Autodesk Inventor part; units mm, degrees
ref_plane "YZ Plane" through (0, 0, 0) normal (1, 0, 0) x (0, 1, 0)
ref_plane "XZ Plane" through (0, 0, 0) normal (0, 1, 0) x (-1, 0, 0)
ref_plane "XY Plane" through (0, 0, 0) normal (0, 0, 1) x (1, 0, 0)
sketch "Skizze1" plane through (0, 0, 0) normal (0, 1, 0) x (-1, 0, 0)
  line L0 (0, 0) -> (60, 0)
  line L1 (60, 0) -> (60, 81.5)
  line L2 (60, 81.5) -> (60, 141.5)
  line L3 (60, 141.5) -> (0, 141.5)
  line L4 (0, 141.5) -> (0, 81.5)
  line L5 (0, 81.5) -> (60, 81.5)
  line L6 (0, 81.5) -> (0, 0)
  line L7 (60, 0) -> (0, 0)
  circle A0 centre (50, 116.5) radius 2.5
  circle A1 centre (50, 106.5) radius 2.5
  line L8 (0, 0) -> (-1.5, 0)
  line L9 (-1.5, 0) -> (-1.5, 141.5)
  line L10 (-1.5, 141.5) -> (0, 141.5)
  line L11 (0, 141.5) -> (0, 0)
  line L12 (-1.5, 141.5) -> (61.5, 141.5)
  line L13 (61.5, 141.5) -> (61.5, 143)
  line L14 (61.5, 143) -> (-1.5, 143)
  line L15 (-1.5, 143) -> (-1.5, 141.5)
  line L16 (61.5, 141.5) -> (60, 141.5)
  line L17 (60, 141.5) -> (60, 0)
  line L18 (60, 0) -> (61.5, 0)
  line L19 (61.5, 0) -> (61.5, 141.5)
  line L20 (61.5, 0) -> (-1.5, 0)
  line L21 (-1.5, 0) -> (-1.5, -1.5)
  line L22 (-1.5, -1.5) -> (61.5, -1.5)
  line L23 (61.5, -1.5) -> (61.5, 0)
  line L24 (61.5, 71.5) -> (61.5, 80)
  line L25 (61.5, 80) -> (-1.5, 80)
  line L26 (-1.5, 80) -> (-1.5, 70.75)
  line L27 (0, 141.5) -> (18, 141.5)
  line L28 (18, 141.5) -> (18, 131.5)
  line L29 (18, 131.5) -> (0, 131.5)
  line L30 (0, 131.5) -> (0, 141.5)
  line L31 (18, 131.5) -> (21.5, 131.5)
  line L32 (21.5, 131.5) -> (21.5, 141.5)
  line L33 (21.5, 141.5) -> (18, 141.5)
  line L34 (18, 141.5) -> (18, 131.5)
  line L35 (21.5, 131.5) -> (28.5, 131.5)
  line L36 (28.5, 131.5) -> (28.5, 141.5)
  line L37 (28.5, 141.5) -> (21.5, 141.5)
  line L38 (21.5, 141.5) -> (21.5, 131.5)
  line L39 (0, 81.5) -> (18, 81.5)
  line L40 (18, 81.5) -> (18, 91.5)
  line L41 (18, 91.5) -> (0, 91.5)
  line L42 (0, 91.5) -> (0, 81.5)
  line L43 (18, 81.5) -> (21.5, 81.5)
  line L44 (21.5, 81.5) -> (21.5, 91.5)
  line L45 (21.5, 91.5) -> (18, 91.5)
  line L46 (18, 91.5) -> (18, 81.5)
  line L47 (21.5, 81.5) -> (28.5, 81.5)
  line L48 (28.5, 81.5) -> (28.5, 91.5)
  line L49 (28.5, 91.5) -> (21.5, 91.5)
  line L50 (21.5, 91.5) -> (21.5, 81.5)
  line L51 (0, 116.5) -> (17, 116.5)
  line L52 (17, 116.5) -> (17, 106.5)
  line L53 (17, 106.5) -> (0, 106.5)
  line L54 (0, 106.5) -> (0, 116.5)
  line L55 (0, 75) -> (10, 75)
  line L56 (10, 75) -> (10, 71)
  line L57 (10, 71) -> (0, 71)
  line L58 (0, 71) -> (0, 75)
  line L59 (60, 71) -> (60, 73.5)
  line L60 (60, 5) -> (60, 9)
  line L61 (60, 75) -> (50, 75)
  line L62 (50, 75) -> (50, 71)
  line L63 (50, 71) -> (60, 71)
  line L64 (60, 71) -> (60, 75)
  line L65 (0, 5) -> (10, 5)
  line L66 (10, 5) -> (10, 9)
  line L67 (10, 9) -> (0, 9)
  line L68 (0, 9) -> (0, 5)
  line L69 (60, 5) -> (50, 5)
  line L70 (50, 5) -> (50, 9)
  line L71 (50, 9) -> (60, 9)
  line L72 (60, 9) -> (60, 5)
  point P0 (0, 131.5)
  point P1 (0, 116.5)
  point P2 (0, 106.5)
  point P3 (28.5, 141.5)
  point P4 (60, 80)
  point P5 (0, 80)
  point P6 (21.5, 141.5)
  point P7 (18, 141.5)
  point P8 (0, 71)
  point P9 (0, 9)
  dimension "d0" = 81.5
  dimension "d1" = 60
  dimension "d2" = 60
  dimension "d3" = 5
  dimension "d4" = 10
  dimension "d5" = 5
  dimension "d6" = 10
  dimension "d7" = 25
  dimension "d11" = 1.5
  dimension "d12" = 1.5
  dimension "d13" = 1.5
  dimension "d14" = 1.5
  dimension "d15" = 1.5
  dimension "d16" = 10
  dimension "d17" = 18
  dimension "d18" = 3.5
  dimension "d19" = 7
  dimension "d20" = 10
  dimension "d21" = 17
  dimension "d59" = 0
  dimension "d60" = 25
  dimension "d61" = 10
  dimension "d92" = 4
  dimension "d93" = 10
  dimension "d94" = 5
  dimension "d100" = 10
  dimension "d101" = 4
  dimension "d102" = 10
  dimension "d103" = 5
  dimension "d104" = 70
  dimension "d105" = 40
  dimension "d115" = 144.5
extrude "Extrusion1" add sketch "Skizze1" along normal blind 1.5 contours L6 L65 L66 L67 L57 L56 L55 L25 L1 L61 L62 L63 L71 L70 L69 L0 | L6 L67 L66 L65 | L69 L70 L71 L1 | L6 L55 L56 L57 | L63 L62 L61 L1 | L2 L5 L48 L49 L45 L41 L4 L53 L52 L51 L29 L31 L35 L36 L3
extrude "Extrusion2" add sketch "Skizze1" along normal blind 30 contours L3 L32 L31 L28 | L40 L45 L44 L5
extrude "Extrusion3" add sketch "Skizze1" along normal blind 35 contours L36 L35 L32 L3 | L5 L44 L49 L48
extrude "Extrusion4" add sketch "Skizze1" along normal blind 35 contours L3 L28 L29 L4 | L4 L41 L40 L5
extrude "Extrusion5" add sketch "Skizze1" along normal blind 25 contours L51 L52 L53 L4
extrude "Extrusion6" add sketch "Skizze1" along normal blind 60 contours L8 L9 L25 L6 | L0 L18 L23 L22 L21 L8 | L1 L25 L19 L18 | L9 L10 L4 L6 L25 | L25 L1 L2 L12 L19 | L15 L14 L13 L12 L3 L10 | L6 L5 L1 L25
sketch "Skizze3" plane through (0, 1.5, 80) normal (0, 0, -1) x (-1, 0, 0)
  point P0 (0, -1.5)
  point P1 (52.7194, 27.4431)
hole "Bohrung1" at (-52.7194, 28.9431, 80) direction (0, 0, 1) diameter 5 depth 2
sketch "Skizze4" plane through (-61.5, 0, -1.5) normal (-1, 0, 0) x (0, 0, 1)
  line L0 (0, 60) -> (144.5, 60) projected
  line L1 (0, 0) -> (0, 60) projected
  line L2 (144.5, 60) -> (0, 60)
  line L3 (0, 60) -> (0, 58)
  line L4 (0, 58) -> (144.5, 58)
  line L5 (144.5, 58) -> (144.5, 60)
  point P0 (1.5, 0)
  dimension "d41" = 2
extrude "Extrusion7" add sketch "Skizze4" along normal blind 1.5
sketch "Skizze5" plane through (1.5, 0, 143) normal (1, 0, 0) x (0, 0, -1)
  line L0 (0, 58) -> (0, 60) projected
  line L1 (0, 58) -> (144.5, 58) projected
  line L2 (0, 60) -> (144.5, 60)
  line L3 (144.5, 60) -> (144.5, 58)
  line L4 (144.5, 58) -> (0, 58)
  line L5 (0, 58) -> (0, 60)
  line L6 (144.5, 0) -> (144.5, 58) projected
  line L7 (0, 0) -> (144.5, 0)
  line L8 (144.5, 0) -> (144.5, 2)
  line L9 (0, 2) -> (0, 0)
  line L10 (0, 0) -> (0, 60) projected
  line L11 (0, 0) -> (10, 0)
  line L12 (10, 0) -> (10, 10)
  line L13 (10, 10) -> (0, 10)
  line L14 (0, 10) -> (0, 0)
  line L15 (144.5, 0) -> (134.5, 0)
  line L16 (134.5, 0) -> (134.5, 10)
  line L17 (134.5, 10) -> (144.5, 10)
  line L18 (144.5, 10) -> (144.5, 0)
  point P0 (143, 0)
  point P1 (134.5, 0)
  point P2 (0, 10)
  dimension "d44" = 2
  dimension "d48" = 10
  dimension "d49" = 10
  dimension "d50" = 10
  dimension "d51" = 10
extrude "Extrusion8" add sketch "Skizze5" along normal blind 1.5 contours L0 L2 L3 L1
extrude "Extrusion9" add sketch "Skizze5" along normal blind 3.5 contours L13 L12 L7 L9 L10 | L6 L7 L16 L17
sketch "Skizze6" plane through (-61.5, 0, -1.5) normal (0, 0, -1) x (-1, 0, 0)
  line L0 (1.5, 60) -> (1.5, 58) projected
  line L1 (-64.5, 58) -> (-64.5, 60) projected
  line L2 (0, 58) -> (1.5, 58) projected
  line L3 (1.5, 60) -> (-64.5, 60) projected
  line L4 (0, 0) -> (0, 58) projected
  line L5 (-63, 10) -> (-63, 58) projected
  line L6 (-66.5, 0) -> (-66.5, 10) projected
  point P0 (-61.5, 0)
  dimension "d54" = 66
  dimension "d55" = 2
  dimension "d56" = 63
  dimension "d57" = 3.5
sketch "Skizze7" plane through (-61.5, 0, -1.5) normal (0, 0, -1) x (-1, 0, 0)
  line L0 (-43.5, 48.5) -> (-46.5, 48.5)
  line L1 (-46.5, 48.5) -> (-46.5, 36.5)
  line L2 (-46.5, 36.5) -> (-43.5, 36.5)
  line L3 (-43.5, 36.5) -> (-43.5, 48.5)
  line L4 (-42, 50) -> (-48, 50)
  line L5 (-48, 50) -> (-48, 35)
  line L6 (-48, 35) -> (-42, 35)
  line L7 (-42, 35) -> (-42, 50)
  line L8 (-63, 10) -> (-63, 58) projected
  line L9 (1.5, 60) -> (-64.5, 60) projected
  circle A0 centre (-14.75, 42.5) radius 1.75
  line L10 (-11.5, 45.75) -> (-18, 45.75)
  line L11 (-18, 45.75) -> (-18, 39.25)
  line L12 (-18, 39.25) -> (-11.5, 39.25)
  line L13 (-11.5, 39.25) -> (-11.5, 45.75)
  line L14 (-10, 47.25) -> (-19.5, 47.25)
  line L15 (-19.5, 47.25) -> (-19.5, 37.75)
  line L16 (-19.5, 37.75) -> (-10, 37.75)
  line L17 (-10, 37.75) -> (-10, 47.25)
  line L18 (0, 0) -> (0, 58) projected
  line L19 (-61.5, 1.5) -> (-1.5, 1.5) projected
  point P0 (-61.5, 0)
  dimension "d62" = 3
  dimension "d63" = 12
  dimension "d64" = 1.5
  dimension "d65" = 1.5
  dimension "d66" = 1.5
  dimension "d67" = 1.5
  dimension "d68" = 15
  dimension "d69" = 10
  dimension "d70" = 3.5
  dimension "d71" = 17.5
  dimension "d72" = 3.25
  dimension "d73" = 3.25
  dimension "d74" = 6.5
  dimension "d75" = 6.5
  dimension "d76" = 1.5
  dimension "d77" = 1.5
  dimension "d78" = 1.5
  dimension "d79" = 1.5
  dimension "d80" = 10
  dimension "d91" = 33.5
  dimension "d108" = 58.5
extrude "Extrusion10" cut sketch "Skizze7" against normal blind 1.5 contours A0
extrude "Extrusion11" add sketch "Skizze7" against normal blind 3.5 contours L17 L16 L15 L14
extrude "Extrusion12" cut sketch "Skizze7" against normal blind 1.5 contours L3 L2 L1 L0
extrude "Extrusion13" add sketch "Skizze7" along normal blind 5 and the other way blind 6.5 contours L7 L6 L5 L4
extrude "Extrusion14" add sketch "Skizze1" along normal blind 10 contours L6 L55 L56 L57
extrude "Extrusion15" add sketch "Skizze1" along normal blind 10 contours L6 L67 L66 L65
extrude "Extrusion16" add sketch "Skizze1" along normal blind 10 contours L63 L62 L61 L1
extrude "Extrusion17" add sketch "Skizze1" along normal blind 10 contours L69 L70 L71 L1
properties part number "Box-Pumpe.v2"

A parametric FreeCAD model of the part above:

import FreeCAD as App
import Part
import Sketcher
from FreeCAD import Vector

doc = App.newDocument("Part")
body = doc.addObject("PartDesign::Body", "Body")
body.AllowCompound = True

# Sketch on XZ plane
sketch1 = body.newObject("Sketcher::SketchObject", "Sketch")
sketch1.AttachmentSupport = (doc.getObject("XZ_Plane"), [""])
sketch1.MapMode = "FlatFace"
sketch1.addGeometry(Part.LineSegment(Vector(0, 0, 0), Vector(-60, 0, 0)), False)
sketch1.addGeometry(Part.LineSegment(Vector(-60, 0, 0), Vector(-60, 80, 0)), False)
sketch1.addGeometry(Part.LineSegment(Vector(-60, 80, 0), Vector(0, 80, 0)), False)
sketch1.addGeometry(Part.LineSegment(Vector(0, 80, 0), Vector(0, 0, 0)), False)
sketch1.addGeometry(Part.LineSegment(Vector(-60, 81.5, 0), Vector(-60, 141.5, 0)), False)
sketch1.addGeometry(Part.LineSegment(Vector(-60, 141.5, 0), Vector(-28.5, 141.5, 0)), False)
sketch1.addGeometry(Part.LineSegment(Vector(-28.5, 141.5, 0), Vector(-28.5, 131.5, 0)), False)
sketch1.addGeometry(Part.LineSegment(Vector(-28.5, 131.5, 0), Vector(0, 131.5, 0)), False)
sketch1.addGeometry(Part.LineSegment(Vector(0, 131.5, 0), Vector(0, 116.5, 0)), False)
sketch1.addGeometry(Part.LineSegment(Vector(0, 116.5, 0), Vector(-17, 116.5, 0)), False)
sketch1.addGeometry(Part.LineSegment(Vector(-17, 116.5, 0), Vector(-17, 106.5, 0)), False)
sketch1.addGeometry(Part.LineSegment(Vector(-17, 106.5, 0), Vector(0, 106.5, 0)), False)
sketch1.addGeometry(Part.LineSegment(Vector(0, 106.5, 0), Vector(0, 91.5, 0)), False)
sketch1.addGeometry(Part.LineSegment(Vector(0, 91.5, 0), Vector(-28.5, 91.5, 0)), False)
sketch1.addGeometry(Part.LineSegment(Vector(-28.5, 91.5, 0), Vector(-28.5, 81.5, 0)), False)
sketch1.addGeometry(Part.LineSegment(Vector(-28.5, 81.5, 0), Vector(-60, 81.5, 0)), False)
sketch1.addGeometry(Part.Circle(Vector(-50, 106.5, 0), Vector(0, 0, 1), 2.5), False)
sketch1.addGeometry(Part.Circle(Vector(-50, 116.5, 0), Vector(0, 0, 1), 2.5), False)
sketch1.addConstraint(Sketcher.Constraint("Coincident", 0, 2, 1, 1))
sketch1.addConstraint(Sketcher.Constraint("Coincident", 1, 2, 2, 1))
sketch1.addConstraint(Sketcher.Constraint("Coincident", 2, 2, 3, 1))
sketch1.addConstraint(Sketcher.Constraint("Coincident", 3, 2, 0, 1))
sketch1.addConstraint(Sketcher.Constraint("Coincident", 4, 2, 5, 1))
sketch1.addConstraint(Sketcher.Constraint("Coincident", 5, 2, 6, 1))
sketch1.addConstraint(Sketcher.Constraint("Coincident", 6, 2, 7, 1))
sketch1.addConstraint(Sketcher.Constraint("Coincident", 7, 2, 8, 1))
sketch1.addConstraint(Sketcher.Constraint("Coincident", 8, 2, 9, 1))
sketch1.addConstraint(Sketcher.Constraint("Coincident", 9, 2, 10, 1))
sketch1.addConstraint(Sketcher.Constraint("Coincident", 10, 2, 11, 1))
sketch1.addConstraint(Sketcher.Constraint("Coincident", 11, 2, 12, 1))
sketch1.addConstraint(Sketcher.Constraint("Coincident", 12, 2, 13, 1))
sketch1.addConstraint(Sketcher.Constraint("Coincident", 13, 2, 14, 1))
sketch1.addConstraint(Sketcher.Constraint("Coincident", 14, 2, 15, 1))
sketch1.addConstraint(Sketcher.Constraint("Coincident", 15, 2, 4, 1))
sketch1.addConstraint(Sketcher.Constraint("Horizontal", 0))
sketch1.addConstraint(Sketcher.Constraint("Vertical", 1))
sketch1.addConstraint(Sketcher.Constraint("Horizontal", 2))
sketch1.addConstraint(Sketcher.Constraint("Vertical", 3))
sketch1.addConstraint(Sketcher.Constraint("Vertical", 4))
sketch1.addConstraint(Sketcher.Constraint("Horizontal", 5))
sketch1.addConstraint(Sketcher.Constraint("Vertical", 6))
sketch1.addConstraint(Sketcher.Constraint("Horizontal", 7))
sketch1.addConstraint(Sketcher.Constraint("Vertical", 8))
sketch1.addConstraint(Sketcher.Constraint("Horizontal", 9))
sketch1.addConstraint(Sketcher.Constraint("Vertical", 10))
sketch1.addConstraint(Sketcher.Constraint("Horizontal", 11))
sketch1.addConstraint(Sketcher.Constraint("Vertical", 12))
sketch1.addConstraint(Sketcher.Constraint("Horizontal", 13))
sketch1.addConstraint(Sketcher.Constraint("Vertical", 14))
sketch1.addConstraint(Sketcher.Constraint("Horizontal", 15))
sketch1.addConstraint(Sketcher.Constraint("Coincident", 3, 2, -1, 1))
sketch1.addConstraint(Sketcher.Constraint("Equal", 16, 17))
sketch1.addConstraint(Sketcher.Constraint("PointOnObject", 7, 2, -2))
sketch1.addConstraint(Sketcher.Constraint("PointOnObject", 11, 2, -2))
sketch1.addConstraint(Sketcher.Constraint("Horizontal", 17, 3, 8, 2))
sketch1.addConstraint(Sketcher.Constraint("Horizontal", 16, 3, 10, 2))
sketch1.addConstraint(Sketcher.Constraint("Vertical", 16, 3, 17, 3))
sketch1.addConstraint(Sketcher.Constraint("Vertical", 1, 2, 4, 2))
sketch1.addConstraint(Sketcher.Constraint("Vertical", 6, 2, 13, 2))
sketch1.addConstraint(Sketcher.Constraint("Equal", 2, 4))
sketch1.addConstraint(Sketcher.Constraint("Equal", 6, 10))
sketch1.addConstraint(Sketcher.Constraint("Equal", 8, 12))
sketch1.addConstraint(Sketcher.Constraint("Equal", 10, 14))
sketch1.addConstraint(Sketcher.Constraint("Diameter", 16, 5.0))
sketch1.addConstraint(Sketcher.Constraint("DistanceX", 0, 2, 0, 1, 60.0))
sketch1.addConstraint(Sketcher.Constraint("DistanceX", 9, 2, 9, 1, 17.0))
sketch1.addConstraint(Sketcher.Constraint("DistanceY", 6, 2, 6, 1, 10.0))
sketch1.addConstraint(Sketcher.Constraint("DistanceX", 0, 2, 16, 3, 10.0))
sketch1.addConstraint(Sketcher.Constraint("DistanceY", -1, 1, 14, 2, 81.5))
sketch1.addConstraint(Sketcher.Constraint("DistanceY", 2, 2, 14, 2, 1.5))
sketch1.addConstraint(Sketcher.Constraint("DistanceX", 5, 1, 5, 2, 31.5))
pad1 = body.newObject("PartDesign::Pad", "Pad")
pad1.Profile = sketch1
pad1.Length = 1.5
pad1.Reversed = True

# Sketch on XZ plane
sketch2 = body.newObject("Sketcher::SketchObject", "Sketch001")
sketch2.AttachmentSupport = (doc.getObject("XZ_Plane"), [""])
sketch2.MapMode = "FlatFace"
sketch2.addGeometry(Part.LineSegment(Vector(-21.5, 141.5, 0), Vector(-18, 141.5, 0)), False)
sketch2.addGeometry(Part.LineSegment(Vector(-18, 141.5, 0), Vector(-18, 131.5, 0)), False)
sketch2.addGeometry(Part.LineSegment(Vector(-18, 131.5, 0), Vector(-21.5, 131.5, 0)), False)
sketch2.addGeometry(Part.LineSegment(Vector(-21.5, 131.5, 0), Vector(-21.5, 141.5, 0)), False)
sketch2.addGeometry(Part.LineSegment(Vector(-18, 91.5, 0), Vector(-18, 81.5, 0)), False)
sketch2.addGeometry(Part.LineSegment(Vector(-18, 81.5, 0), Vector(-21.5, 81.5, 0)), False)
sketch2.addGeometry(Part.LineSegment(Vector(-21.5, 81.5, 0), Vector(-21.5, 91.5, 0)), False)
sketch2.addGeometry(Part.LineSegment(Vector(-21.5, 91.5, 0), Vector(-18, 91.5, 0)), False)
sketch2.addConstraint(Sketcher.Constraint("Coincident", 0, 2, 1, 1))
sketch2.addConstraint(Sketcher.Constraint("Coincident", 1, 2, 2, 1))
sketch2.addConstraint(Sketcher.Constraint("Coincident", 2, 2, 3, 1))
sketch2.addConstraint(Sketcher.Constraint("Coincident", 3, 2, 0, 1))
sketch2.addConstraint(Sketcher.Constraint("Coincident", 4, 2, 5, 1))
sketch2.addConstraint(Sketcher.Constraint("Coincident", 5, 2, 6, 1))
sketch2.addConstraint(Sketcher.Constraint("Coincident", 6, 2, 7, 1))
sketch2.addConstraint(Sketcher.Constraint("Coincident", 7, 2, 4, 1))
sketch2.addConstraint(Sketcher.Constraint("Horizontal", 0))
sketch2.addConstraint(Sketcher.Constraint("Vertical", 1))
sketch2.addConstraint(Sketcher.Constraint("Horizontal", 2))
sketch2.addConstraint(Sketcher.Constraint("Vertical", 3))
sketch2.addConstraint(Sketcher.Constraint("Vertical", 4))
sketch2.addConstraint(Sketcher.Constraint("Horizontal", 5))
sketch2.addConstraint(Sketcher.Constraint("Vertical", 6))
sketch2.addConstraint(Sketcher.Constraint("Horizontal", 7))
sketch2.addConstraint(Sketcher.Constraint("Vertical", 1, 2, 4, 2))
sketch2.addConstraint(Sketcher.Constraint("Vertical", 3, 2, 5, 2))
sketch2.addConstraint(Sketcher.Constraint("Equal", 3, 4))
sketch2.addConstraint(Sketcher.Constraint("DistanceY", 1, 2, 1, 1, 10.0))
sketch2.addConstraint(Sketcher.Constraint("DistanceX", 0, 1, 0, 2, 3.5))
sketch2.addConstraint(Sketcher.Constraint("DistanceX", 0, 2, -1, 1, 18.0))
sketch2.addConstraint(Sketcher.Constraint("DistanceY", 4, 2, 0, 2, 60.0))
sketch2.addConstraint(Sketcher.Constraint("DistanceY", -1, 1, 4, 2, 81.5))
pad2 = body.newObject("PartDesign::Pad", "Pad001")
pad2.Profile = sketch2
pad2.Length = 30
pad2.Reversed = True

# Sketch on XZ plane
sketch3 = body.newObject("Sketcher::SketchObject", "Sketch002")
sketch3.AttachmentSupport = (doc.getObject("XZ_Plane"), [""])
sketch3.MapMode = "FlatFace"
sketch3.addGeometry(Part.LineSegment(Vector(-28, 132, 0), Vector(-28, 142, 0)), False)
sketch3.addGeometry(Part.LineSegment(Vector(-28, 142, 0), Vector(-22, 142, 0)), False)
sketch3.addGeometry(Part.LineSegment(Vector(-22, 142, 0), Vector(-22, 132, 0)), False)
sketch3.addGeometry(Part.LineSegment(Vector(-22, 132, 0), Vector(-28, 132, 0)), False)
sketch3.addGeometry(Part.LineSegment(Vector(-22, 82, 0), Vector(-28, 82, 0)), False)
sketch3.addGeometry(Part.LineSegment(Vector(-28, 82, 0), Vector(-28, 92, 0)), False)
sketch3.addGeometry(Part.LineSegment(Vector(-28, 92, 0), Vector(-22, 92, 0)), False)
sketch3.addGeometry(Part.LineSegment(Vector(-22, 92, 0), Vector(-22, 82, 0)), False)
sketch3.addConstraint(Sketcher.Constraint("Coincident", 0, 2, 1, 1))
sketch3.addConstraint(Sketcher.Constraint("Coincident", 1, 2, 2, 1))
sketch3.addConstraint(Sketcher.Constraint("Coincident", 2, 2, 3, 1))
sketch3.addConstraint(Sketcher.Constraint("Coincident", 3, 2, 0, 1))
sketch3.addConstraint(Sketcher.Constraint("Coincident", 4, 2, 5, 1))
sketch3.addConstraint(Sketcher.Constraint("Coincident", 5, 2, 6, 1))
sketch3.addConstraint(Sketcher.Constraint("Coincident", 6, 2, 7, 1))
sketch3.addConstraint(Sketcher.Constraint("Coincident", 7, 2, 4, 1))
sketch3.addConstraint(Sketcher.Constraint("Vertical", 0))
sketch3.addConstraint(Sketcher.Constraint("Horizontal", 1))
sketch3.addConstraint(Sketcher.Constraint("Vertical", 2))
sketch3.addConstraint(Sketcher.Constraint("Horizontal", 3))
sketch3.addConstraint(Sketcher.Constraint("Horizontal", 4))
sketch3.addConstraint(Sketcher.Constraint("Vertical", 5))
sketch3.addConstraint(Sketcher.Constraint("Horizontal", 6))
sketch3.addConstraint(Sketcher.Constraint("Vertical", 7))
sketch3.addConstraint(Sketcher.Constraint("Vertical", 3, 2, 4, 2))
sketch3.addConstraint(Sketcher.Constraint("Vertical", 2, 2, 6, 2))
sketch3.addConstraint(Sketcher.Constraint("Equal", 2, 5))
sketch3.addConstraint(Sketcher.Constraint("DistanceX", 1, 1, 1, 2, 7.0))
sketch3.addConstraint(Sketcher.Constraint("DistanceY", 0, 1, 0, 2, 10.0))
sketch3.addConstraint(Sketcher.Constraint("DistanceY", 4, 2, 0, 2, 60.0))
sketch3.addConstraint(Sketcher.Constraint("DistanceY", -1, 1, 4, 2, 81.5))
sketch3.addConstraint(Sketcher.Constraint("DistanceX", 0, 2, -1, 1, 28.5))
pad3 = body.newObject("PartDesign::Pad", "Pad002")
pad3.Profile = sketch3
pad3.Length = 35
pad3.Reversed = True

# Sketch on XZ plane
sketch4 = body.newObject("Sketcher::SketchObject", "Sketch003")
sketch4.AttachmentSupport = (doc.getObject("XZ_Plane"), [""])
sketch4.MapMode = "FlatFace"
sketch4.addGeometry(Part.LineSegment(Vector(-18, 142, 0), Vector(0, 142, 0)), False)
sketch4.addGeometry(Part.LineSegment(Vector(0, 142, 0), Vector(0, 132, 0)), False)
sketch4.addGeometry(Part.LineSegment(Vector(0, 132, 0), Vector(-18, 132, 0)), False)
sketch4.addGeometry(Part.LineSegment(Vector(-18, 132, 0), Vector(-18, 142, 0)), False)
sketch4.addGeometry(Part.LineSegment(Vector(0, 92, 0), Vector(0, 82, 0)), False)
sketch4.addGeometry(Part.LineSegment(Vector(0, 82, 0), Vector(-18, 82, 0)), False)
sketch4.addGeometry(Part.LineSegment(Vector(-18, 82, 0), Vector(-18, 92, 0)), False)
sketch4.addGeometry(Part.LineSegment(Vector(-18, 92, 0), Vector(0, 92, 0)), False)
sketch4.addConstraint(Sketcher.Constraint("Coincident", 0, 2, 1, 1))
sketch4.addConstraint(Sketcher.Constraint("Coincident", 1, 2, 2, 1))
sketch4.addConstraint(Sketcher.Constraint("Coincident", 2, 2, 3, 1))
sketch4.addConstraint(Sketcher.Constraint("Coincident", 3, 2, 0, 1))
sketch4.addConstraint(Sketcher.Constraint("Coincident", 4, 2, 5, 1))
sketch4.addConstraint(Sketcher.Constraint("Coincident", 5, 2, 6, 1))
sketch4.addConstraint(Sketcher.Constraint("Coincident", 6, 2, 7, 1))
sketch4.addConstraint(Sketcher.Constraint("Coincident", 7, 2, 4, 1))
sketch4.addConstraint(Sketcher.Constraint("Horizontal", 0))
sketch4.addConstraint(Sketcher.Constraint("Vertical", 1))
sketch4.addConstraint(Sketcher.Constraint("Horizontal", 2))
sketch4.addConstraint(Sketcher.Constraint("Vertical", 3))
sketch4.addConstraint(Sketcher.Constraint("Vertical", 4))
sketch4.addConstraint(Sketcher.Constraint("Horizontal", 5))
sketch4.addConstraint(Sketcher.Constraint("Vertical", 6))
sketch4.addConstraint(Sketcher.Constraint("Horizontal", 7))
sketch4.addConstraint(Sketcher.Constraint("PointOnObject", 0, 2, -2))
sketch4.addConstraint(Sketcher.Constraint("PointOnObject", 4, 2, -2))
sketch4.addConstraint(Sketcher.Constraint("Vertical", 3, 2, 5, 2))
sketch4.addConstraint(Sketcher.Constraint("Equal", 3, 4))
sketch4.addConstraint(Sketcher.Constraint("DistanceX", 0, 1, 0, 2, 18.0))
sketch4.addConstraint(Sketcher.Constraint("DistanceY", 1, 2, 1, 1, 10.0))
sketch4.addConstraint(Sketcher.Constraint("DistanceY", 4, 2, 0, 2, 60.0))
sketch4.addConstraint(Sketcher.Constraint("DistanceY", -1, 1, 4, 2, 81.5))
pad4 = body.newObject("PartDesign::Pad", "Pad003")
pad4.Profile = sketch4
pad4.Length = 35
pad4.Reversed = True

# Sketch on XZ plane
sketch5 = body.newObject("Sketcher::SketchObject", "Sketch004")
sketch5.AttachmentSupport = (doc.getObject("XZ_Plane"), [""])
sketch5.MapMode = "FlatFace"
sketch5.addGeometry(Part.LineSegment(Vector(-17, 116, 0), Vector(0, 116, 0)), False)
sketch5.addGeometry(Part.LineSegment(Vector(0, 116, 0), Vector(0, 106, 0)), False)
sketch5.addGeometry(Part.LineSegment(Vector(0, 106, 0), Vector(-17, 106, 0)), False)
sketch5.addGeometry(Part.LineSegment(Vector(-17, 106, 0), Vector(-17, 116, 0)), False)
sketch5.addConstraint(Sketcher.Constraint("Coincident", 0, 2, 1, 1))
sketch5.addConstraint(Sketcher.Constraint("Coincident", 1, 2, 2, 1))
sketch5.addConstraint(Sketcher.Constraint("Coincident", 2, 2, 3, 1))
sketch5.addConstraint(Sketcher.Constraint("Coincident", 3, 2, 0, 1))
sketch5.addConstraint(Sketcher.Constraint("Horizontal", 0))
sketch5.addConstraint(Sketcher.Constraint("Vertical", 1))
sketch5.addConstraint(Sketcher.Constraint("Horizontal", 2))
sketch5.addConstraint(Sketcher.Constraint("Vertical", 3))
sketch5.addConstraint(Sketcher.Constraint("PointOnObject", 0, 2, -2))
sketch5.addConstraint(Sketcher.Constraint("DistanceX", 0, 1, 0, 2, 17.0))
sketch5.addConstraint(Sketcher.Constraint("DistanceY", 1, 2, 1, 1, 10.0))
sketch5.addConstraint(Sketcher.Constraint("DistanceY", -1, 1, 0, 2, 116.5))
pad5 = body.newObject("PartDesign::Pad", "Pad004")
pad5.Profile = sketch5
pad5.Length = 25
pad5.Reversed = True

# Sketch on XZ plane
sketch6 = body.newObject("Sketcher::SketchObject", "Sketch005")
sketch6.AttachmentSupport = (doc.getObject("XZ_Plane"), [""])
sketch6.MapMode = "FlatFace"
sketch6.addGeometry(Part.LineSegment(Vector(2, -2, 0), Vector(-62, -2, 0)), False)
sketch6.addGeometry(Part.LineSegment(Vector(-62, -2, 0), Vector(-62, 143, 0)), False)
sketch6.addGeometry(Part.LineSegment(Vector(-62, 143, 0), Vector(2, 143, 0)), False)
sketch6.addGeometry(Part.LineSegment(Vector(2, 143, 0), Vector(2, -2, 0)), False)
sketch6.addGeometry(Part.LineSegment(Vector(0, 80, 0), Vector(-60, 80, 0)), False)
sketch6.addGeometry(Part.LineSegment(Vector(-60, 80, 0), Vector(-60, 0, 0)), False)
sketch6.addGeometry(Part.LineSegment(Vector(-60, 0, 0), Vector(0, 0, 0)), False)
sketch6.addGeometry(Part.LineSegment(Vector(0, 0, 0), Vector(0, 80, 0)), False)
sketch6.addGeometry(Part.LineSegment(Vector(0, 142, 0), Vector(-60, 142, 0)), False)
sketch6.addGeometry(Part.LineSegment(Vector(-60, 142, 0), Vector(-60, 82, 0)), False)
sketch6.addGeometry(Part.LineSegment(Vector(-60, 82, 0), Vector(0, 82, 0)), False)
sketch6.addGeometry(Part.LineSegment(Vector(0, 82, 0), Vector(0, 142, 0)), False)
sketch6.addConstraint(Sketcher.Constraint("Coincident", 0, 2, 1, 1))
sketch6.addConstraint(Sketcher.Constraint("Coincident", 1, 2, 2, 1))
sketch6.addConstraint(Sketcher.Constraint("Coincident", 2, 2, 3, 1))
sketch6.addConstraint(Sketcher.Constraint("Coincident", 3, 2, 0, 1))
sketch6.addConstraint(Sketcher.Constraint("Coincident", 4, 2, 5, 1))
sketch6.addConstraint(Sketcher.Constraint("Coincident", 5, 2, 6, 1))
sketch6.addConstraint(Sketcher.Constraint("Coincident", 6, 2, 7, 1))
sketch6.addConstraint(Sketcher.Constraint("Coincident", 7, 2, 4, 1))
sketch6.addConstraint(Sketcher.Constraint("Coincident", 8, 2, 9, 1))
sketch6.addConstraint(Sketcher.Constraint("Coincident", 9, 2, 10, 1))
sketch6.addConstraint(Sketcher.Constraint("Coincident", 10, 2, 11, 1))
sketch6.addConstraint(Sketcher.Constraint("Coincident", 11, 2, 8, 1))
sketch6.addConstraint(Sketcher.Constraint("Horizontal", 0))
sketch6.addConstraint(Sketcher.Constraint("Vertical", 1))
sketch6.addConstraint(Sketcher.Constraint("Horizontal", 2))
sketch6.addConstraint(Sketcher.Constraint("Vertical", 3))
sketch6.addConstraint(Sketcher.Constraint("Horizontal", 4))
sketch6.addConstraint(Sketcher.Constraint("Vertical", 5))
sketch6.addConstraint(Sketcher.Constraint("Horizontal", 6))
sketch6.addConstraint(Sketcher.Constraint("Vertical", 7))
sketch6.addConstraint(Sketcher.Constraint("Horizontal", 8))
sketch6.addConstraint(Sketcher.Constraint("Vertical", 9))
sketch6.addConstraint(Sketcher.Constraint("Horizontal", 10))
sketch6.addConstraint(Sketcher.Constraint("Vertical", 11))
sketch6.addConstraint(Sketcher.Constraint("Coincident", 6, 2, -1, 1))
sketch6.addConstraint(Sketcher.Constraint("PointOnObject", 10, 2, -2))
sketch6.addConstraint(Sketcher.Constraint("Vertical", 5, 2, 8, 2))
sketch6.addConstraint(Sketcher.Constraint("Equal", 10, 9))
sketch6.addConstraint(Sketcher.Constraint("DistanceX", 4, 2, 4, 1, 60.0))
sketch6.addConstraint(Sketcher.Constraint("DistanceY", 1, 1, 1, 2, 144.5))
sketch6.addConstraint(Sketcher.Constraint("DistanceY", 0, 2, -1, 1, 1.5))
sketch6.addConstraint(Sketcher.Constraint("DistanceX", -1, 1, 2, 2, 1.5))
sketch6.addConstraint(Sketcher.Constraint("DistanceY", -1, 1, 9, 2, 81.5))
sketch6.addConstraint(Sketcher.Constraint("DistanceX", 1, 2, 4, 2, 1.5))
sketch6.addConstraint(Sketcher.Constraint("DistanceY", 0, 2, 4, 2, 81.5))
pad6 = body.newObject("PartDesign::Pad", "Pad005")
pad6.Profile = sketch6
pad6.Length = 60
pad6.Reversed = True

# Sketch on XY plane
sketch7 = body.newObject("Sketcher::SketchObject", "Sketch006")
sketch7.AttachmentSupport = (doc.getObject("XY_Plane"), [""])
sketch7.MapMode = "FlatFace"
sketch7.AttachmentOffset = App.Placement(Vector(0, 0, 80), App.Rotation())
sketch7.addGeometry(Part.Circle(Vector(-52.7, 28.9, 0), Vector(0, 0, 1), 2.5), False)
sketch7.addConstraint(Sketcher.Constraint("Diameter", 0, 5.0))
sketch7.addConstraint(Sketcher.Constraint("DistanceY", -1, 1, 0, 3, 28.943))
sketch7.addConstraint(Sketcher.Constraint("DistanceX", 0, 3, -1, 1, 52.7194))
doc.recompute()
hole = body.newObject("PartDesign::Hole", "Hole")
hole.Profile = sketch7
hole.ThreadType = "None"
hole.Diameter = 5
hole.DepthType = "Dimension"
hole.Depth = 2
hole.DrillPoint = "Flat"
hole.Reversed = True

# Sketch on YZ plane
sketch8 = body.newObject("Sketcher::SketchObject", "Sketch007")
sketch8.AttachmentSupport = (doc.getObject("YZ_Plane"), [""])
sketch8.MapMode = "FlatFace"
sketch8.AttachmentOffset = App.Placement(Vector(0, 0, -61.5), App.Rotation())
sketch8.addGeometry(Part.LineSegment(Vector(60, 143, 0), Vector(60, -1.5, 0)), False)
sketch8.addGeometry(Part.LineSegment(Vector(60, -1.5, 0), Vector(58, -1.5, 0)), False)
sketch8.addGeometry(Part.LineSegment(Vector(58, -1.5, 0), Vector(58, 143, 0)), False)
sketch8.addGeometry(Part.LineSegment(Vector(58, 143, 0), Vector(60, 143, 0)), False)
sketch8.addConstraint(Sketcher.Constraint("Coincident", 0, 2, 1, 1))
sketch8.addConstraint(Sketcher.Constraint("Coincident", 1, 2, 2, 1))
sketch8.addConstraint(Sketcher.Constraint("Coincident", 2, 2, 3, 1))
sketch8.addConstraint(Sketcher.Constraint("Coincident", 3, 2, 0, 1))
sketch8.addConstraint(Sketcher.Constraint("Vertical", 0))
sketch8.addConstraint(Sketcher.Constraint("Horizontal", 1))
sketch8.addConstraint(Sketcher.Constraint("Vertical", 2))
sketch8.addConstraint(Sketcher.Constraint("Horizontal", 3))
sketch8.addConstraint(Sketcher.Constraint("DistanceX", 1, 2, 1, 1, 2.0))
sketch8.addConstraint(Sketcher.Constraint("DistanceY", 0, 2, 0, 1, 144.5))
sketch8.addConstraint(Sketcher.Constraint("DistanceX", -1, 1, 0, 2, 60.0))
sketch8.addConstraint(Sketcher.Constraint("DistanceY", -1, 1, 2, 2, 143.0))
pad7 = body.newObject("PartDesign::Pad", "Pad006")
pad7.Profile = sketch8
pad7.Length = 1.5
pad7.Reversed = True

# Sketch on YZ plane
sketch9 = body.newObject("Sketcher::SketchObject", "Sketch008")
sketch9.AttachmentSupport = (doc.getObject("YZ_Plane"), [""])
sketch9.MapMode = "FlatFace"
sketch9.AttachmentOffset = App.Placement(Vector(0, 0, 1.5), App.Rotation())
sketch9.addGeometry(Part.LineSegment(Vector(60, 143, 0), Vector(58, 143, 0)), False)
sketch9.addGeometry(Part.LineSegment(Vector(58, 143, 0), Vector(58, -1.5, 0)), False)
sketch9.addGeometry(Part.LineSegment(Vector(58, -1.5, 0), Vector(60, -1.5, 0)), False)
sketch9.addGeometry(Part.LineSegment(Vector(60, -1.5, 0), Vector(60, 143, 0)), False)
sketch9.addConstraint(Sketcher.Constraint("Coincident", 0, 2, 1, 1))
sketch9.addConstraint(Sketcher.Constraint("Coincident", 1, 2, 2, 1))
sketch9.addConstraint(Sketcher.Constraint("Coincident", 2, 2, 3, 1))
sketch9.addConstraint(Sketcher.Constraint("Coincident", 3, 2, 0, 1))
sketch9.addConstraint(Sketcher.Constraint("Horizontal", 0))
sketch9.addConstraint(Sketcher.Constraint("Vertical", 1))
sketch9.addConstraint(Sketcher.Constraint("Horizontal", 2))
sketch9.addConstraint(Sketcher.Constraint("Vertical", 3))
sketch9.addConstraint(Sketcher.Constraint("DistanceX", 0, 2, 0, 1, 2.0))
sketch9.addConstraint(Sketcher.Constraint("DistanceY", 1, 2, 1, 1, 144.5))
sketch9.addConstraint(Sketcher.Constraint("DistanceX", -1, 1, 0, 2, 58.0))
sketch9.addConstraint(Sketcher.Constraint("DistanceY", -1, 1, 0, 2, 143.0))
pad8 = body.newObject("PartDesign::Pad", "Pad007")
pad8.Profile = sketch9
pad8.Length = 1.5

# Sketch on YZ plane
sketch10 = body.newObject("Sketcher::SketchObject", "Sketch009")
sketch10.AttachmentSupport = (doc.getObject("YZ_Plane"), [""])
sketch10.MapMode = "FlatFace"
sketch10.AttachmentOffset = App.Placement(Vector(0, 0, 1.5), App.Rotation())
sketch10.addGeometry(Part.LineSegment(Vector(10, 133, 0), Vector(10, 143, 0)), False)
sketch10.addGeometry(Part.LineSegment(Vector(10, 143, 0), Vector(0, 143, 0)), False)
sketch10.addGeometry(Part.LineSegment(Vector(0, 143, 0), Vector(0, 133, 0)), False)
sketch10.addGeometry(Part.LineSegment(Vector(0, 133, 0), Vector(10, 133, 0)), False)
sketch10.addGeometry(Part.LineSegment(Vector(0, -2, 0), Vector(10, -2, 0)), False)
sketch10.addGeometry(Part.LineSegment(Vector(10, -2, 0), Vector(10, 8, 0)), False)
sketch10.addGeometry(Part.LineSegment(Vector(10, 8, 0), Vector(0, 8, 0)), False)
sketch10.addGeometry(Part.LineSegment(Vector(0, 8, 0), Vector(0, -2, 0)), False)
sketch10.addConstraint(Sketcher.Constraint("Coincident", 0, 2, 1, 1))
sketch10.addConstraint(Sketcher.Constraint("Coincident", 1, 2, 2, 1))
sketch10.addConstraint(Sketcher.Constraint("Coincident", 2, 2, 3, 1))
sketch10.addConstraint(Sketcher.Constraint("Coincident", 3, 2, 0, 1))
sketch10.addConstraint(Sketcher.Constraint("Coincident", 4, 2, 5, 1))
sketch10.addConstraint(Sketcher.Constraint("Coincident", 5, 2, 6, 1))
sketch10.addConstraint(Sketcher.Constraint("Coincident", 6, 2, 7, 1))
sketch10.addConstraint(Sketcher.Constraint("Coincident", 7, 2, 4, 1))
sketch10.addConstraint(Sketcher.Constraint("Vertical", 0))
sketch10.addConstraint(Sketcher.Constraint("Horizontal", 1))
sketch10.addConstraint(Sketcher.Constraint("Vertical", 2))
sketch10.addConstraint(Sketcher.Constraint("Horizontal", 3))
sketch10.addConstraint(Sketcher.Constraint("Horizontal", 4))
sketch10.addConstraint(Sketcher.Constraint("Vertical", 5))
sketch10.addConstraint(Sketcher.Constraint("Horizontal", 6))
sketch10.addConstraint(Sketcher.Constraint("Vertical", 7))
sketch10.addConstraint(Sketcher.Constraint("PointOnObject", 1, 2, -2))
sketch10.addConstraint(Sketcher.Constraint("PointOnObject", 6, 2, -2))
sketch10.addConstraint(Sketcher.Constraint("Vertical", 3, 2, 4, 2))
sketch10.addConstraint(Sketcher.Constraint("Equal", 6, 0))
sketch10.addConstraint(Sketcher.Constraint("Equal", 2, 5))
sketch10.addConstraint(Sketcher.Constraint("DistanceX", 1, 2, 1, 1, 10.0))
sketch10.addConstraint(Sketcher.Constraint("DistanceY", -1, 1, 0, 2, 143.0))
sketch10.addConstraint(Sketcher.Constraint("DistanceY", 4, 2, -1, 1, 1.5))
pad9 = body.newObject("PartDesign::Pad", "Pad008")
pad9.Profile = sketch10
pad9.Length = 3.5

# Sketch on XY plane
sketch11 = body.newObject("Sketcher::SketchObject", "Sketch010")
sketch11.AttachmentSupport = (doc.getObject("XY_Plane"), [""])
sketch11.MapMode = "FlatFace"
sketch11.AttachmentOffset = App.Placement(Vector(0, 0, -1.5), App.Rotation())
sketch11.addGeometry(Part.Circle(Vector(-46.8, 42.5, 0), Vector(0, 0, 1), 1.8), False)
sketch11.addConstraint(Sketcher.Constraint("Diameter", 0, 3.5))
sketch11.addConstraint(Sketcher.Constraint("DistanceY", -1, 1, 0, 3, 42.5))
sketch11.addConstraint(Sketcher.Constraint("DistanceX", 0, 3, -1, 1, 46.75))
pocket1 = body.newObject("PartDesign::Pocket", "Pocket")
pocket1.Profile = sketch11
pocket1.Length = 1.5
pocket1.Reversed = True

# Sketch on XY plane
sketch12 = body.newObject("Sketcher::SketchObject", "Sketch011")
sketch12.AttachmentSupport = (doc.getObject("XY_Plane"), [""])
sketch12.MapMode = "FlatFace"
sketch12.AttachmentOffset = App.Placement(Vector(0, 0, -1.5), App.Rotation())
sketch12.addGeometry(Part.LineSegment(Vector(-52, 38, 0), Vector(-52, 47, 0)), False)
sketch12.addGeometry(Part.LineSegment(Vector(-52, 47, 0), Vector(-42, 47, 0)), False)
sketch12.addGeometry(Part.LineSegment(Vector(-42, 47, 0), Vector(-42, 38, 0)), False)
sketch12.addGeometry(Part.LineSegment(Vector(-42, 38, 0), Vector(-52, 38, 0)), False)
sketch12.addGeometry(Part.LineSegment(Vector(-44, 46, 0), Vector(-50, 46, 0)), False)
sketch12.addGeometry(Part.LineSegment(Vector(-50, 46, 0), Vector(-50, 39, 0)), False)
sketch12.addGeometry(Part.LineSegment(Vector(-50, 39, 0), Vector(-44, 39, 0)), False)
sketch12.addGeometry(Part.LineSegment(Vector(-44, 39, 0), Vector(-44, 46, 0)), False)
sketch12.addConstraint(Sketcher.Constraint("Coincident", 0, 2, 1, 1))
sketch12.addConstraint(Sketcher.Constraint("Coincident", 1, 2, 2, 1))
sketch12.addConstraint(Sketcher.Constraint("Coincident", 2, 2, 3, 1))
sketch12.addConstraint(Sketcher.Constraint("Coincident", 3, 2, 0, 1))
sketch12.addConstraint(Sketcher.Constraint("Coincident", 4, 2, 5, 1))
sketch12.addConstraint(Sketcher.Constraint("Coincident", 5, 2, 6, 1))
sketch12.addConstraint(Sketcher.Constraint("Coincident", 6, 2, 7, 1))
sketch12.addConstraint(Sketcher.Constraint("Coincident", 7, 2, 4, 1))
sketch12.addConstraint(Sketcher.Constraint("Vertical", 0))
sketch12.addConstraint(Sketcher.Constraint("Horizontal", 1))
sketch12.addConstraint(Sketcher.Constraint("Vertical", 2))
sketch12.addConstraint(Sketcher.Constraint("Horizontal", 3))
sketch12.addConstraint(Sketcher.Constraint("Horizontal", 4))
sketch12.addConstraint(Sketcher.Constraint("Vertical", 5))
sketch12.addConstraint(Sketcher.Constraint("Horizontal", 6))
sketch12.addConstraint(Sketcher.Constraint("Vertical", 7))
sketch12.addConstraint(Sketcher.Constraint("Equal", 3, 0))
sketch12.addConstraint(Sketcher.Constraint("Equal", 6, 5))
sketch12.addConstraint(Sketcher.Constraint("DistanceX", 4, 2, 4, 1, 6.5))
sketch12.addConstraint(Sketcher.Constraint("DistanceX", 0, 2, 4, 2, 1.5))
sketch12.addConstraint(Sketcher.Constraint("DistanceY", 4, 2, 0, 2, 1.5))
sketch12.addConstraint(Sketcher.Constraint("DistanceY", 3, 2, 5, 2, 1.5))
sketch12.addConstraint(Sketcher.Constraint("DistanceX", 1, 2, -1, 1, 42.0))
sketch12.addConstraint(Sketcher.Constraint("DistanceY", -1, 1, 0, 2, 47.25))
pad10 = body.newObject("PartDesign::Pad", "Pad009")
pad10.Profile = sketch12
pad10.Length = 3.5

# Sketch on XY plane
sketch13 = body.newObject("Sketcher::SketchObject", "Sketch012")
sketch13.AttachmentSupport = (doc.getObject("XY_Plane"), [""])
sketch13.MapMode = "FlatFace"
sketch13.AttachmentOffset = App.Placement(Vector(0, 0, -1.5), App.Rotation())
sketch13.addGeometry(Part.LineSegment(Vector(-18, 36.5, 0), Vector(-18, 48.5, 0)), False)
sketch13.addGeometry(Part.LineSegment(Vector(-18, 48.5, 0), Vector(-15, 48.5, 0)), False)
sketch13.addGeometry(Part.LineSegment(Vector(-15, 48.5, 0), Vector(-15, 36.5, 0)), False)
sketch13.addGeometry(Part.LineSegment(Vector(-15, 36.5, 0), Vector(-18, 36.5, 0)), False)
sketch13.addConstraint(Sketcher.Constraint("Coincident", 0, 2, 1, 1))
sketch13.addConstraint(Sketcher.Constraint("Coincident", 1, 2, 2, 1))
sketch13.addConstraint(Sketcher.Constraint("Coincident", 2, 2, 3, 1))
sketch13.addConstraint(Sketcher.Constraint("Coincident", 3, 2, 0, 1))
sketch13.addConstraint(Sketcher.Constraint("Vertical", 0))
sketch13.addConstraint(Sketcher.Constraint("Horizontal", 1))
sketch13.addConstraint(Sketcher.Constraint("Vertical", 2))
sketch13.addConstraint(Sketcher.Constraint("Horizontal", 3))
sketch13.addConstraint(Sketcher.Constraint("DistanceX", 1, 1, 1, 2, 3.0))
sketch13.addConstraint(Sketcher.Constraint("DistanceY", 0, 1, 0, 2, 12.0))
sketch13.addConstraint(Sketcher.Constraint("DistanceX", 1, 2, -1, 1, 15.0))
sketch13.addConstraint(Sketcher.Constraint("DistanceY", -1, 1, 0, 2, 48.5))
pocket2 = body.newObject("PartDesign::Pocket", "Pocket001")
pocket2.Profile = sketch13
pocket2.Length = 1.5
pocket2.Reversed = True

# Sketch on XY plane
sketch14 = body.newObject("Sketcher::SketchObject", "Sketch013")
sketch14.AttachmentSupport = (doc.getObject("XY_Plane"), [""])
sketch14.MapMode = "FlatFace"
sketch14.AttachmentOffset = App.Placement(Vector(0, 0, -1.5), App.Rotation())
sketch14.addGeometry(Part.LineSegment(Vector(-19.5, 35, 0), Vector(-19.5, 50, 0)), False)
sketch14.addGeometry(Part.LineSegment(Vector(-19.5, 50, 0), Vector(-13.5, 50, 0)), False)
sketch14.addGeometry(Part.LineSegment(Vector(-13.5, 50, 0), Vector(-13.5, 35, 0)), False)
sketch14.addGeometry(Part.LineSegment(Vector(-13.5, 35, 0), Vector(-19.5, 35, 0)), False)
sketch14.addGeometry(Part.LineSegment(Vector(-15, 48.5, 0), Vector(-18, 48.5, 0)), False)
sketch14.addGeometry(Part.LineSegment(Vector(-18, 48.5, 0), Vector(-18, 36.5, 0)), False)
sketch14.addGeometry(Part.LineSegment(Vector(-18, 36.5, 0), Vector(-15, 36.5, 0)), False)
sketch14.addGeometry(Part.LineSegment(Vector(-15, 36.5, 0), Vector(-15, 48.5, 0)), False)
sketch14.addConstraint(Sketcher.Constraint("Coincident", 0, 2, 1, 1))
sketch14.addConstraint(Sketcher.Constraint("Coincident", 1, 2, 2, 1))
sketch14.addConstraint(Sketcher.Constraint("Coincident", 2, 2, 3, 1))
sketch14.addConstraint(Sketcher.Constraint("Coincident", 3, 2, 0, 1))
sketch14.addConstraint(Sketcher.Constraint("Coincident", 4, 2, 5, 1))
sketch14.addConstraint(Sketcher.Constraint("Coincident", 5, 2, 6, 1))
sketch14.addConstraint(Sketcher.Constraint("Coincident", 6, 2, 7, 1))
sketch14.addConstraint(Sketcher.Constraint("Coincident", 7, 2, 4, 1))
sketch14.addConstraint(Sketcher.Constraint("Vertical", 0))
sketch14.addConstraint(Sketcher.Constraint("Horizontal", 1))
sketch14.addConstraint(Sketcher.Constraint("Vertical", 2))
sketch14.addConstraint(Sketcher.Constraint("Horizontal", 3))
sketch14.addConstraint(Sketcher.Constraint("Horizontal", 4))
sketch14.addConstraint(Sketcher.Constraint("Vertical", 5))
sketch14.addConstraint(Sketcher.Constraint("Horizontal", 6))
sketch14.addConstraint(Sketcher.Constraint("Vertical", 7))
sketch14.addConstraint(Sketcher.Constraint("DistanceX", 4, 2, 4, 1, 3.0))
sketch14.addConstraint(Sketcher.Constraint("DistanceY", 0, 1, 0, 2, 15.0))
sketch14.addConstraint(Sketcher.Constraint("DistanceY", 5, 2, 5, 1, 12.0))
sketch14.addConstraint(Sketcher.Constraint("DistanceX", 6, 2, -1, 1, 15.0))
sketch14.addConstraint(Sketcher.Constraint("DistanceX", 0, 2, 4, 2, 1.5))
sketch14.addConstraint(Sketcher.Constraint("DistanceY", 4, 2, 0, 2, 1.5))
sketch14.addConstraint(Sketcher.Constraint("DistanceX", 6, 2, 2, 2, 1.5))
sketch14.addConstraint(Sketcher.Constraint("DistanceY", -1, 1, 0, 2, 50.0))
pad11 = body.newObject("PartDesign::Pad", "Pad010")
pad11.Profile = sketch14
pad11.Type = "TwoLengths"
pad11.Length = 5
pad11.Length2 = 6.5
pad11.Reversed = True

# Sketch on XZ plane
sketch15 = body.newObject("Sketcher::SketchObject", "Sketch014")
sketch15.AttachmentSupport = (doc.getObject("XZ_Plane"), [""])
sketch15.MapMode = "FlatFace"
sketch15.addGeometry(Part.LineSegment(Vector(0, 75, 0), Vector(0, 71, 0)), False)
sketch15.addGeometry(Part.LineSegment(Vector(0, 71, 0), Vector(-10, 71, 0)), False)
sketch15.addGeometry(Part.LineSegment(Vector(-10, 71, 0), Vector(-10, 75, 0)), False)
sketch15.addGeometry(Part.LineSegment(Vector(-10, 75, 0), Vector(0, 75, 0)), False)
sketch15.addConstraint(Sketcher.Constraint("Coincident", 0, 2, 1, 1))
sketch15.addConstraint(Sketcher.Constraint("Coincident", 1, 2, 2, 1))
sketch15.addConstraint(Sketcher.Constraint("Coincident", 2, 2, 3, 1))
sketch15.addConstraint(Sketcher.Constraint("Coincident", 3, 2, 0, 1))
sketch15.addConstraint(Sketcher.Constraint("Vertical", 0))
sketch15.addConstraint(Sketcher.Constraint("Horizontal", 1))
sketch15.addConstraint(Sketcher.Constraint("Vertical", 2))
sketch15.addConstraint(Sketcher.Constraint("Horizontal", 3))
sketch15.addConstraint(Sketcher.Constraint("PointOnObject", 0, 2, -2))
sketch15.addConstraint(Sketcher.Constraint("DistanceX", 1, 2, 1, 1, 10.0))
sketch15.addConstraint(Sketcher.Constraint("DistanceY", 0, 2, 0, 1, 4.0))
sketch15.addConstraint(Sketcher.Constraint("DistanceY", -1, 1, 0, 2, 71.0))
pad12 = body.newObject("PartDesign::Pad", "Pad011")
pad12.Profile = sketch15
pad12.Length = 10
pad12.Reversed = True

# Sketch on XZ plane
sketch16 = body.newObject("Sketcher::SketchObject", "Sketch015")
sketch16.AttachmentSupport = (doc.getObject("XZ_Plane"), [""])
sketch16.MapMode = "FlatFace"
sketch16.addGeometry(Part.LineSegment(Vector(0, 9, 0), Vector(0, 5, 0)), False)
sketch16.addGeometry(Part.LineSegment(Vector(0, 5, 0), Vector(-10, 5, 0)), False)
sketch16.addGeometry(Part.LineSegment(Vector(-10, 5, 0), Vector(-10, 9, 0)), False)
sketch16.addGeometry(Part.LineSegment(Vector(-10, 9, 0), Vector(0, 9, 0)), False)
sketch16.addConstraint(Sketcher.Constraint("Coincident", 0, 2, 1, 1))
sketch16.addConstraint(Sketcher.Constraint("Coincident", 1, 2, 2, 1))
sketch16.addConstraint(Sketcher.Constraint("Coincident", 2, 2, 3, 1))
sketch16.addConstraint(Sketcher.Constraint("Coincident", 3, 2, 0, 1))
sketch16.addConstraint(Sketcher.Constraint("Vertical", 0))
sketch16.addConstraint(Sketcher.Constraint("Horizontal", 1))
sketch16.addConstraint(Sketcher.Constraint("Vertical", 2))
sketch16.addConstraint(Sketcher.Constraint("Horizontal", 3))
sketch16.addConstraint(Sketcher.Constraint("PointOnObject", 0, 2, -2))
sketch16.addConstraint(Sketcher.Constraint("DistanceX", 1, 2, 1, 1, 10.0))
sketch16.addConstraint(Sketcher.Constraint("DistanceY", 0, 2, 0, 1, 4.0))
sketch16.addConstraint(Sketcher.Constraint("DistanceY", -1, 1, 0, 2, 5.0))
pad13 = body.newObject("PartDesign::Pad", "Pad012")
pad13.Profile = sketch16
pad13.Length = 10
pad13.Reversed = True

# Sketch on XZ plane
sketch17 = body.newObject("Sketcher::SketchObject", "Sketch016")
sketch17.AttachmentSupport = (doc.getObject("XZ_Plane"), [""])
sketch17.MapMode = "FlatFace"
sketch17.addGeometry(Part.LineSegment(Vector(-50, 71, 0), Vector(-60, 71, 0)), False)
sketch17.addGeometry(Part.LineSegment(Vector(-60, 71, 0), Vector(-60, 75, 0)), False)
sketch17.addGeometry(Part.LineSegment(Vector(-60, 75, 0), Vector(-50, 75, 0)), False)
sketch17.addGeometry(Part.LineSegment(Vector(-50, 75, 0), Vector(-50, 71, 0)), False)
sketch17.addConstraint(Sketcher.Constraint("Coincident", 0, 2, 1, 1))
sketch17.addConstraint(Sketcher.Constraint("Coincident", 1, 2, 2, 1))
sketch17.addConstraint(Sketcher.Constraint("Coincident", 2, 2, 3, 1))
sketch17.addConstraint(Sketcher.Constraint("Coincident", 3, 2, 0, 1))
sketch17.addConstraint(Sketcher.Constraint("Horizontal", 0))
sketch17.addConstraint(Sketcher.Constraint("Vertical", 1))
sketch17.addConstraint(Sketcher.Constraint("Horizontal", 2))
sketch17.addConstraint(Sketcher.Constraint("Vertical", 3))
sketch17.addConstraint(Sketcher.Constraint("DistanceX", 0, 2, 0, 1, 10.0))
sketch17.addConstraint(Sketcher.Constraint("DistanceY", 1, 1, 1, 2, 4.0))
sketch17.addConstraint(Sketcher.Constraint("DistanceX", 0, 2, -1, 1, 60.0))
sketch17.addConstraint(Sketcher.Constraint("DistanceY", -1, 1, 0, 2, 71.0))
pad14 = body.newObject("PartDesign::Pad", "Pad013")
pad14.Profile = sketch17
pad14.Length = 10
pad14.Reversed = True

# Sketch on XZ plane
sketch18 = body.newObject("Sketcher::SketchObject", "Sketch017")
sketch18.AttachmentSupport = (doc.getObject("XZ_Plane"), [""])
sketch18.MapMode = "FlatFace"
sketch18.addGeometry(Part.LineSegment(Vector(-50, 5, 0), Vector(-60, 5, 0)), False)
sketch18.addGeometry(Part.LineSegment(Vector(-60, 5, 0), Vector(-60, 9, 0)), False)
sketch18.addGeometry(Part.LineSegment(Vector(-60, 9, 0), Vector(-50, 9, 0)), False)
sketch18.addGeometry(Part.LineSegment(Vector(-50, 9, 0), Vector(-50, 5, 0)), False)
sketch18.addConstraint(Sketcher.Constraint("Coincident", 0, 2, 1, 1))
sketch18.addConstraint(Sketcher.Constraint("Coincident", 1, 2, 2, 1))
sketch18.addConstraint(Sketcher.Constraint("Coincident", 2, 2, 3, 1))
sketch18.addConstraint(Sketcher.Constraint("Coincident", 3, 2, 0, 1))
sketch18.addConstraint(Sketcher.Constraint("Horizontal", 0))
sketch18.addConstraint(Sketcher.Constraint("Vertical", 1))
sketch18.addConstraint(Sketcher.Constraint("Horizontal", 2))
sketch18.addConstraint(Sketcher.Constraint("Vertical", 3))
sketch18.addConstraint(Sketcher.Constraint("DistanceX", 0, 2, 0, 1, 10.0))
sketch18.addConstraint(Sketcher.Constraint("DistanceY", 1, 1, 1, 2, 4.0))
sketch18.addConstraint(Sketcher.Constraint("DistanceX", 0, 2, -1, 1, 60.0))
sketch18.addConstraint(Sketcher.Constraint("DistanceY", -1, 1, 0, 2, 5.0))
pad15 = body.newObject("PartDesign::Pad", "Pad014")
pad15.Profile = sketch18
pad15.Length = 10
pad15.Reversed = True

doc.recompute()
